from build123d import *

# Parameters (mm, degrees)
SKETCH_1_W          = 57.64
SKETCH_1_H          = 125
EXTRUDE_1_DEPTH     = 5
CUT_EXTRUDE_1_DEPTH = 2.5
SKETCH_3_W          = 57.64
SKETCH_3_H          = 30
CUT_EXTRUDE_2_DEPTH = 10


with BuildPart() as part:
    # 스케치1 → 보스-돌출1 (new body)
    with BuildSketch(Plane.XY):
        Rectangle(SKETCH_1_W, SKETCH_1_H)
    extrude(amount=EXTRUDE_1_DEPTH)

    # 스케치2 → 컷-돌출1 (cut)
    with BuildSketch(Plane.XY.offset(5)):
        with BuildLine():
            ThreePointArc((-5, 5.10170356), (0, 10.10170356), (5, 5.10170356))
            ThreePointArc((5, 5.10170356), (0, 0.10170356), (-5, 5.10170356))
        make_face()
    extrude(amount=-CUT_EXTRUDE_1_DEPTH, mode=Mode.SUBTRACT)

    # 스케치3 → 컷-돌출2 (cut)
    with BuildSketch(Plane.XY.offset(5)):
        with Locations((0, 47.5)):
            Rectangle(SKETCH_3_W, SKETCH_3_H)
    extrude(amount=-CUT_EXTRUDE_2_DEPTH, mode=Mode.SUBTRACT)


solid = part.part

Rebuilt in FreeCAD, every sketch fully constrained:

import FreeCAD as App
import Part
import Sketcher
from FreeCAD import Vector
Q = App.Units.Quantity


def add_polygon(sketch, points):
    """Adds a closed chain of lines whose ends are joined by coincident constraints."""
    first, n = sketch.GeometryCount, len(points)
    for a, b in zip(points, points[1:] + points[:1]):
        sketch.addGeometry(Part.LineSegment(App.Vector(*a, 0), App.Vector(*b, 0)), False)
    for i in range(n):
        sketch.addConstraint(Sketcher.Constraint("Coincident", first + i, 2, first + (i + 1) % n, 1))

doc = App.newDocument("Part")
params = doc.addObject("Spreadsheet::Sheet", "Params")
for row, (alias, value) in enumerate([
    ("sketch1_height", "125 mm"),
    ("sketch1_width", "57.64 mm"),
    ("pad1_length", "5 mm"),
    ("sketch2_diameter", "10 mm"),
    ("pocket1_length", "2.5 mm"),
    ("sketch3_height", "30 mm"),
    ("sketch3_width", "57.64 mm"),
    ("pocket2_length", "10 mm"),
], start=1):
    params.set(f"A{row}", alias)
    params.set(f"B{row}", "=" + value)
    params.setAlias(f"B{row}", alias)

body = doc.addObject("PartDesign::Body", "Body")

sketch1 = body.newObject("Sketcher::SketchObject", "Sketch")
sketch1.AttachmentSupport = (doc.getObject("XY_Plane"), [""])
sketch1.MapMode = "FlatFace"
add_polygon(sketch1, [(-29, 62), (-29, -62), (29, -62), (29, 62)])
sketch1.addConstraint([
    Sketcher.Constraint("Vertical", 0),
    Sketcher.Constraint("Horizontal", 1),
    Sketcher.Constraint("Vertical", 2),
    Sketcher.Constraint("Horizontal", 3),
    Sketcher.Constraint("Symmetric", 0, 2, 2, 2, -1, 1),
    Sketcher.Constraint("DistanceY", 0, 2, 0, 1, Q("125 mm")),
    Sketcher.Constraint("DistanceX", 1, 1, 1, 2, Q("57.64 mm")),
])
sketch1.setExpression("Constraints[9]", "Params.sketch1_height")
sketch1.setExpression("Constraints[10]", "Params.sketch1_width")
pad1 = body.newObject("PartDesign::Pad", "Pad")
pad1.Profile = sketch1
pad1.setExpression("Length", "Params.pad1_length")

sketch2 = body.newObject("Sketcher::SketchObject", "Sketch001")
sketch2.AttachmentSupport = (doc.getObject("XY_Plane"), [""])
sketch2.MapMode = "FlatFace"
sketch2.AttachmentOffset = App.Placement(Vector(0, 0, 5), App.Rotation())
sketch2.addGeometry(Part.Circle(Vector(0, 5, 0), Vector(0, 0, 1), 5), False)
sketch2.addConstraint([
    Sketcher.Constraint("PointOnObject", 0, 3, -2),
    Sketcher.Constraint("Diameter", 0, Q("10 mm")),
    Sketcher.Constraint("DistanceY", -1, 1, 0, 3, Q("5.101704 mm")),
])
sketch2.setExpression("Constraints[1]", "Params.sketch2_diameter")
pocket1 = body.newObject("PartDesign::Pocket", "Pocket")
pocket1.Profile = sketch2
pocket1.setExpression("Length", "Params.pocket1_length")

sketch3 = body.newObject("Sketcher::SketchObject", "Sketch002")
sketch3.AttachmentSupport = (doc.getObject("XY_Plane"), [""])
sketch3.MapMode = "FlatFace"
sketch3.AttachmentOffset = App.Placement(Vector(0, 0, 5), App.Rotation())
add_polygon(sketch3, [(-29, 62), (-29, 32), (29, 32), (29, 62)])
sketch3.addConstraint([
    Sketcher.Constraint("Vertical", 0),
    Sketcher.Constraint("Horizontal", 1),
    Sketcher.Constraint("Vertical", 2),
    Sketcher.Constraint("Horizontal", 3),
    Sketcher.Constraint("DistanceY", 0, 2, 0, 1, Q("30 mm")),
    Sketcher.Constraint("DistanceX", 1, 1, 1, 2, Q("57.64 mm")),
    Sketcher.Constraint("DistanceY", -1, 1, 0, 2, Q("32.5 mm")),
    Sketcher.Constraint("DistanceX", 0, 2, -1, 1, Q("28.82 mm")),
])
sketch3.setExpression("Constraints[8]", "Params.sketch3_height")
sketch3.setExpression("Constraints[9]", "Params.sketch3_width")
pocket2 = body.newObject("PartDesign::Pocket", "Pocket001")
pocket2.Profile = sketch3
pocket2.setExpression("Length", "Params.pocket2_length")

doc.recompute()
